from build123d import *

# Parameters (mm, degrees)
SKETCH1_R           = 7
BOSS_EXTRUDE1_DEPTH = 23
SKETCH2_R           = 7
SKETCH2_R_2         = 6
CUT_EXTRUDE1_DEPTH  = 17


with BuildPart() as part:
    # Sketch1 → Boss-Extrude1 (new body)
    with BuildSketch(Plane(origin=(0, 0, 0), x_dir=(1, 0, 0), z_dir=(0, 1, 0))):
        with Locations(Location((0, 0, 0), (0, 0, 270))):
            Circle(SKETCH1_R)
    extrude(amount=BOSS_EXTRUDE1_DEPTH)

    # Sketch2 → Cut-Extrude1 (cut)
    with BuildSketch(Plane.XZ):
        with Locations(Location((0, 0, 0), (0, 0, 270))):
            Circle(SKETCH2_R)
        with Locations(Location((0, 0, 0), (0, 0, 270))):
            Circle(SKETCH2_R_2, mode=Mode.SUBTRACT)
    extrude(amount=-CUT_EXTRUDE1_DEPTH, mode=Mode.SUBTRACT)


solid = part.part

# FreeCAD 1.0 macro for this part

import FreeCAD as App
import Part
import Sketcher
from FreeCAD import Vector

doc = App.newDocument("Part")
body = doc.addObject("PartDesign::Body", "Body")

# Sketch on XZ plane
sketch1 = body.newObject("Sketcher::SketchObject", "Sketch")
sketch1.AttachmentSupport = (doc.getObject("XZ_Plane"), [""])
sketch1.MapMode = "FlatFace"
sketch1.addGeometry(Part.Circle(Vector(0, 0, 0), Vector(0, 0, 1), 7), False)
sketch1.addConstraint(Sketcher.Constraint("Coincident", 0, 3, -1, 1))
sketch1.addConstraint(Sketcher.Constraint("Diameter", 0, 14.0))
pad1 = body.newObject("PartDesign::Pad", "Pad")
pad1.Profile = sketch1
pad1.Length = 23
pad1.Reversed = True

# Sketch on XZ plane
sketch2 = body.newObject("Sketcher::SketchObject", "Sketch001")
sketch2.AttachmentSupport = (doc.getObject("XZ_Plane"), [""])
sketch2.MapMode = "FlatFace"
sketch2.addGeometry(Part.Circle(Vector(0, 0, 0), Vector(0, 0, 1), 7), False)
sketch2.addGeometry(Part.Circle(Vector(0, 0, 0), Vector(0, 0, 1), 6), False)
sketch2.addConstraint(Sketcher.Constraint("Coincident", 0, 3, -1, 1))
sketch2.addConstraint(Sketcher.Constraint("Coincident", 1, 3, -1, 1))
sketch2.addConstraint(Sketcher.Constraint("Diameter", 0, 14.0))
sketch2.addConstraint(Sketcher.Constraint("Diameter", 1, 12.0))
pocket1 = body.newObject("PartDesign::Pocket", "Pocket")
pocket1.Profile = sketch2
pocket1.Length = 17

doc.recompute()
